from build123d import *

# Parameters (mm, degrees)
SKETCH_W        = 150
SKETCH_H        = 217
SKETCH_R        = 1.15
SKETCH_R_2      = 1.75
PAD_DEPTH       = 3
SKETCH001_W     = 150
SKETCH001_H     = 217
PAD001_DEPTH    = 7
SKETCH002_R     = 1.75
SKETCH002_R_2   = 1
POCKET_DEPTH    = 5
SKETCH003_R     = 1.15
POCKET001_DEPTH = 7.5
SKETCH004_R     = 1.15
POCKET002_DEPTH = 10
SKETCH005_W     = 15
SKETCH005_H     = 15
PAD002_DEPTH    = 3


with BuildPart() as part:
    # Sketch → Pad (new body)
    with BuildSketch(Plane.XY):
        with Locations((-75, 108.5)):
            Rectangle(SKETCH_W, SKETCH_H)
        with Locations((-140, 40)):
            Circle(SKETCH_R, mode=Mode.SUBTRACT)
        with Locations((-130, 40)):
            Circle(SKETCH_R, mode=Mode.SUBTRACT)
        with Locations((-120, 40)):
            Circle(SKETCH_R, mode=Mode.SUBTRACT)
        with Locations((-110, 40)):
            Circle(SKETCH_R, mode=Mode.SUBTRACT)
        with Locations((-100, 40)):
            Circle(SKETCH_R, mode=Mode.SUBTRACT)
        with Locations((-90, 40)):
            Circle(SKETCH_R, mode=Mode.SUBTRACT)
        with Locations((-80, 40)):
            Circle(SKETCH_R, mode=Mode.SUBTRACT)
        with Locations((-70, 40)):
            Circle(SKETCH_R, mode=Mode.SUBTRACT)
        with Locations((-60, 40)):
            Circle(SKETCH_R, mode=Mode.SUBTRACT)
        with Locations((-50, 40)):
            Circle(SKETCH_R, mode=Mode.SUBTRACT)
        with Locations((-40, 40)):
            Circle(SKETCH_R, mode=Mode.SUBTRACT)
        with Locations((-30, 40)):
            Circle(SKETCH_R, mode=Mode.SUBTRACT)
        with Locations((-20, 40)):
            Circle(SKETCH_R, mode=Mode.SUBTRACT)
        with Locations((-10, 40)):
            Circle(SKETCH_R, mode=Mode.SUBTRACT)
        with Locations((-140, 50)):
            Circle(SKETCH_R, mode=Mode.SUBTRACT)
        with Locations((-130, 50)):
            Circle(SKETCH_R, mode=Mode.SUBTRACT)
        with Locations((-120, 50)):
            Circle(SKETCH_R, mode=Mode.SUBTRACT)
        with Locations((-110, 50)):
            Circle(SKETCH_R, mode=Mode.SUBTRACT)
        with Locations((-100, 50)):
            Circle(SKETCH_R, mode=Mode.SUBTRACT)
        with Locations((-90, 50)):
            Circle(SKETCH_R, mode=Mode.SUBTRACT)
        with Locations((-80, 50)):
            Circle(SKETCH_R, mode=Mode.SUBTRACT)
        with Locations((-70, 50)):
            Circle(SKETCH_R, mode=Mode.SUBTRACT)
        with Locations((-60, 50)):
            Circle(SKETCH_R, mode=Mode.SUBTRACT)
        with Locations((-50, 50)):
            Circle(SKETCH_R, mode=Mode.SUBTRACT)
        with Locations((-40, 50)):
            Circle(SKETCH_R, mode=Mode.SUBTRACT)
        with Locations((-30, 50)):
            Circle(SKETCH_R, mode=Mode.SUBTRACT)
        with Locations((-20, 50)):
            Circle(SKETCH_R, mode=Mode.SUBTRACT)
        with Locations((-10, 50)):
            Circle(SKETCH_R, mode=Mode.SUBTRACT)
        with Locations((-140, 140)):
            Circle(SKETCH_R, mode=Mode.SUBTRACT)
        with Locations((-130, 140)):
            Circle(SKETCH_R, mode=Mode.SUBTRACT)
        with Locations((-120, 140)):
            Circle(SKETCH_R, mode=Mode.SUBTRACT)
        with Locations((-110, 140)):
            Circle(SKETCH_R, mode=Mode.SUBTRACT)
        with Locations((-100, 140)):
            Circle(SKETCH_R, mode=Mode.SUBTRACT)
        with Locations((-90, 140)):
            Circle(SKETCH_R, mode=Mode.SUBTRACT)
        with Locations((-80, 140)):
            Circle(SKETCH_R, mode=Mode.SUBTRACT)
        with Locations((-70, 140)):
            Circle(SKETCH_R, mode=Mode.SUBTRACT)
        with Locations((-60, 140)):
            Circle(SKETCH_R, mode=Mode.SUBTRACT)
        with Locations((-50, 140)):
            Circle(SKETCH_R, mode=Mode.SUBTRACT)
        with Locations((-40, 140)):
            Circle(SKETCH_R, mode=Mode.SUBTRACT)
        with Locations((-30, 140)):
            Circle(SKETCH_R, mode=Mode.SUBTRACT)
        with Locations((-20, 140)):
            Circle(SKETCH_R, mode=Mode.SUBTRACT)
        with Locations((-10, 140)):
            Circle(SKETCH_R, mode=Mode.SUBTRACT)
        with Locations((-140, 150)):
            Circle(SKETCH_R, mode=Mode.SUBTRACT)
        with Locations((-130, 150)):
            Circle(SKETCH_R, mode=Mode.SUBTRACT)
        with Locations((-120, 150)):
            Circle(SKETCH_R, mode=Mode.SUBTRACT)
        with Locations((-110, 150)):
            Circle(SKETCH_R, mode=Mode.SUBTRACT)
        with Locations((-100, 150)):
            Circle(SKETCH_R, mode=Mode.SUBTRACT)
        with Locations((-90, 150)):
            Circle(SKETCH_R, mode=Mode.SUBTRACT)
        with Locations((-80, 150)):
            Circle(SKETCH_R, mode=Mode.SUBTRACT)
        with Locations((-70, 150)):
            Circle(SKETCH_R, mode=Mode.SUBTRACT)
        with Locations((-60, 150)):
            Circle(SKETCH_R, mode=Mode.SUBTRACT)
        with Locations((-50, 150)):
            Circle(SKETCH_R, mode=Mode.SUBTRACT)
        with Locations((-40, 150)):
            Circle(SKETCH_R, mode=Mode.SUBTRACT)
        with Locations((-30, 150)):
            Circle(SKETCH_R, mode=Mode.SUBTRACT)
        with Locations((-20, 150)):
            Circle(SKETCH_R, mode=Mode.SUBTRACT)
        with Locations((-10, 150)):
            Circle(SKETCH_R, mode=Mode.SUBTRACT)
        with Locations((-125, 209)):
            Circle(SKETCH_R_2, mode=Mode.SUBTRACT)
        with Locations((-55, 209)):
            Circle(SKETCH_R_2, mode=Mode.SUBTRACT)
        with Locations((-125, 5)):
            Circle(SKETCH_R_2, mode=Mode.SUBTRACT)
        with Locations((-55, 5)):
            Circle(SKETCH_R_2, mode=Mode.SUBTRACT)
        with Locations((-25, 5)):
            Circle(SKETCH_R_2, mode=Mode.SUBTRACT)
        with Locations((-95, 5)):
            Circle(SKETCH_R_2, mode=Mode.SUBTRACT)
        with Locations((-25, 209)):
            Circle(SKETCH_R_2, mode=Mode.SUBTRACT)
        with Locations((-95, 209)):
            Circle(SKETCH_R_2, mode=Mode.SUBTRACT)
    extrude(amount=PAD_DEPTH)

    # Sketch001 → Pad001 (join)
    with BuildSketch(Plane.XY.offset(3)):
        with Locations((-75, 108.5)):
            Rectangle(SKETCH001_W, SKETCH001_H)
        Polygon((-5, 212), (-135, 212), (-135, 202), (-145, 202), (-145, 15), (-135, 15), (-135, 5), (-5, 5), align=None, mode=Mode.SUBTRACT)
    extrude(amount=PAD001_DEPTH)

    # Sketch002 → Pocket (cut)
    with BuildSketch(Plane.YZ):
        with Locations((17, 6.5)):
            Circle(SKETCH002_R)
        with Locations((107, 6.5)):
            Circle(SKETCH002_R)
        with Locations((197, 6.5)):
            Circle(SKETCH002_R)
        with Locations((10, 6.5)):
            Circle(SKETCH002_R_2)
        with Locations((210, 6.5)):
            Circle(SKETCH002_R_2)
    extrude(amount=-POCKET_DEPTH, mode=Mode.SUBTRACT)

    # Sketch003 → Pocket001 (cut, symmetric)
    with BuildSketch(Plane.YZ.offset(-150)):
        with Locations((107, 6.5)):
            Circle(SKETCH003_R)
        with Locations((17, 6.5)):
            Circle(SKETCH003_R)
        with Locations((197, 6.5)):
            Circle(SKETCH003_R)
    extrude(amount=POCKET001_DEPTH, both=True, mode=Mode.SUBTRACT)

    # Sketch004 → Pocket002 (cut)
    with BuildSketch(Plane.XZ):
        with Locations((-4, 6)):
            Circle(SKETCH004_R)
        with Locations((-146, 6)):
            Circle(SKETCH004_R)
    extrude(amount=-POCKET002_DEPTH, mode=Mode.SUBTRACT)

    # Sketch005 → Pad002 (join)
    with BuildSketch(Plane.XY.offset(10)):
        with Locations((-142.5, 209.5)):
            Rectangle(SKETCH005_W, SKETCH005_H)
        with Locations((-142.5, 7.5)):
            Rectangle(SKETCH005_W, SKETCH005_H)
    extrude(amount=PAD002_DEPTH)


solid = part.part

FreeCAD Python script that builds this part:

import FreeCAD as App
import Part
import Sketcher

V = App.Vector

doc = App.newDocument("Part")
body = doc.addObject("PartDesign::Body", "Body")

# Sketch on XY plane
sketch1 = body.newObject("Sketcher::SketchObject", "Sketch")
sketch1.AttachmentSupport = (doc.getObject("XY_Plane"), [""])
sketch1.MapMode = "FlatFace"
sketch1.addGeometry([
    Part.LineSegment(V(-150, 217, 0), V(-150, 0, 0)),  # 0
    Part.LineSegment(V(-150, 0, 0), V(0, 0, 0)),  # 1
    Part.LineSegment(V(0, 0, 0), V(0, 217, 0)),  # 2
    Part.LineSegment(V(0, 217, 0), V(-150, 217, 0)),  # 3
    Part.Circle(V(-125, 5, 0), V(0, 0, 1), 1.8),  # 4
    Part.Circle(V(-140, 40, 0), V(0, 0, 1), 1.1),  # 5
    Part.Circle(V(-130, 40, 0), V(0, 0, 1), 1.1),  # 6
    Part.Circle(V(-140, 50, 0), V(0, 0, 1), 1.1),  # 7
    Part.Circle(V(-130, 50, 0), V(0, 0, 1), 1.1),  # 8
    Part.Circle(V(-120, 40, 0), V(0, 0, 1), 1.1),  # 9
    Part.Circle(V(-110, 40, 0), V(0, 0, 1), 1.1),  # 10
    Part.Circle(V(-120, 50, 0), V(0, 0, 1), 1.1),  # 11
    Part.Circle(V(-110, 50, 0), V(0, 0, 1), 1.1),  # 12
    Part.Circle(V(-95, 5, 0), V(0, 0, 1), 1.8),  # 13
    Part.Circle(V(-100, 40, 0), V(0, 0, 1), 1.1),  # 14
    Part.Circle(V(-100, 50, 0), V(0, 0, 1), 1.1),  # 15
    Part.Circle(V(-90, 40, 0), V(0, 0, 1), 1.1),  # 16
    Part.Circle(V(-80, 40, 0), V(0, 0, 1), 1.1),  # 17
    Part.Circle(V(-90, 50, 0), V(0, 0, 1), 1.1),  # 18
    Part.Circle(V(-80, 50, 0), V(0, 0, 1), 1.1),  # 19
    Part.Circle(V(-55, 5, 0), V(0, 0, 1), 1.8),  # 20
    Part.Circle(V(-70, 40, 0), V(0, 0, 1), 1.1),  # 21
    Part.Circle(V(-60, 40, 0), V(0, 0, 1), 1.1),  # 22
    Part.Circle(V(-70, 50, 0), V(0, 0, 1), 1.1),  # 23
    Part.Circle(V(-60, 50, 0), V(0, 0, 1), 1.1),  # 24
    Part.Circle(V(-50, 40, 0), V(0, 0, 1), 1.1),  # 25
    Part.Circle(V(-50, 50, 0), V(0, 0, 1), 1.1),  # 26
    Part.Circle(V(-25, 5, 0), V(0, 0, 1), 1.8),  # 27
    Part.Circle(V(-40, 40, 0), V(0, 0, 1), 1.1),  # 28
    Part.Circle(V(-30, 40, 0), V(0, 0, 1), 1.1),  # 29
    Part.Circle(V(-40, 50, 0), V(0, 0, 1), 1.1),  # 30
    Part.Circle(V(-30, 50, 0), V(0, 0, 1), 1.1),  # 31
    Part.Circle(V(-20, 40, 0), V(0, 0, 1), 1.1),  # 32
    Part.Circle(V(-10, 40, 0), V(0, 0, 1), 1.1),  # 33
    Part.Circle(V(-20, 50, 0), V(0, 0, 1), 1.1),  # 34
    Part.Circle(V(-10, 50, 0), V(0, 0, 1), 1.1),  # 35
    Part.Circle(V(-140, 140, 0), V(0, 0, 1), 1.1),  # 36
    Part.Circle(V(-130, 140, 0), V(0, 0, 1), 1.1),  # 37
    Part.Circle(V(-140, 150, 0), V(0, 0, 1), 1.1),  # 38
    Part.Circle(V(-130, 150, 0), V(0, 0, 1), 1.1),  # 39
    Part.Circle(V(-120, 140, 0), V(0, 0, 1), 1.1),  # 40
    Part.Circle(V(-110, 140, 0), V(0, 0, 1), 1.1),  # 41
    Part.Circle(V(-120, 150, 0), V(0, 0, 1), 1.1),  # 42
    Part.Circle(V(-110, 150, 0), V(0, 0, 1), 1.1),  # 43
    Part.Circle(V(-100, 140, 0), V(0, 0, 1), 1.1),  # 44
    Part.Circle(V(-100, 150, 0), V(0, 0, 1), 1.1),  # 45
    Part.Circle(V(-90, 140, 0), V(0, 0, 1), 1.1),  # 46
    Part.Circle(V(-80, 140, 0), V(0, 0, 1), 1.1),  # 47
    Part.Circle(V(-90, 150, 0), V(0, 0, 1), 1.1),  # 48
    Part.Circle(V(-80, 150, 0), V(0, 0, 1), 1.1),  # 49
    Part.Circle(V(-125, 209, 0), V(0, 0, 1), 1.8),  # 50
    Part.Circle(V(-95, 209, 0), V(0, 0, 1), 1.8),  # 51
    Part.Circle(V(-70, 140, 0), V(0, 0, 1), 1.1),  # 52
    Part.Circle(V(-60, 140, 0), V(0, 0, 1), 1.1),  # 53
    Part.Circle(V(-70, 150, 0), V(0, 0, 1), 1.1),  # 54
    Part.Circle(V(-60, 150, 0), V(0, 0, 1), 1.1),  # 55
    Part.Circle(V(-50, 140, 0), V(0, 0, 1), 1.1),  # 56
    Part.Circle(V(-50, 150, 0), V(0, 0, 1), 1.1),  # 57
    Part.Circle(V(-40, 140, 0), V(0, 0, 1), 1.1),  # 58
    Part.Circle(V(-30, 140, 0), V(0, 0, 1), 1.1),  # 59
    Part.Circle(V(-40, 150, 0), V(0, 0, 1), 1.1),  # 60
    Part.Circle(V(-30, 150, 0), V(0, 0, 1), 1.1),  # 61
    Part.Circle(V(-20, 140, 0), V(0, 0, 1), 1.1),  # 62
    Part.Circle(V(-10, 140, 0), V(0, 0, 1), 1.1),  # 63
    Part.Circle(V(-20, 150, 0), V(0, 0, 1), 1.1),  # 64
    Part.Circle(V(-10, 150, 0), V(0, 0, 1), 1.1),  # 65
    Part.Circle(V(-55, 209, 0), V(0, 0, 1), 1.8),  # 66
    Part.Circle(V(-25, 209, 0), V(0, 0, 1), 1.8),  # 67
], False)
sketch1.addConstraint([
    Sketcher.Constraint("Coincident", 0, 2, 1, 1),
    Sketcher.Constraint("Coincident", 1, 2, 2, 1),
    Sketcher.Constraint("Coincident", 2, 2, 3, 1),
    Sketcher.Constraint("Coincident", 3, 2, 0, 1),
    Sketcher.Constraint("Vertical", 0),
    Sketcher.Constraint("Horizontal", 1),
    Sketcher.Constraint("Vertical", 2),
    Sketcher.Constraint("Horizontal", 3),
    Sketcher.Constraint("Coincident", 1, 2, -1, 1),
    Sketcher.Constraint("Equal", 5, 6),
    Sketcher.Constraint("Equal", 6, 7),
    Sketcher.Constraint("Equal", 7, 8),
    Sketcher.Constraint("Equal", 8, 9),
    Sketcher.Constraint("Equal", 9, 10),
    Sketcher.Constraint("Equal", 10, 11),
    Sketcher.Constraint("Equal", 11, 12),
    Sketcher.Constraint("Equal", 4, 13),
    Sketcher.Constraint("Equal", 12, 14),
    Sketcher.Constraint("Equal", 14, 15),
    Sketcher.Constraint("Equal", 15, 16),
    Sketcher.Constraint("Equal", 16, 17),
    Sketcher.Constraint("Equal", 17, 18),
    Sketcher.Constraint("Equal", 18, 19),
    Sketcher.Constraint("Equal", 13, 20),
    Sketcher.Constraint("Equal", 19, 21),
    Sketcher.Constraint("Equal", 21, 22),
    Sketcher.Constraint("Equal", 22, 23),
    Sketcher.Constraint("Equal", 23, 24),
    Sketcher.Constraint("Equal", 24, 25),
    Sketcher.Constraint("Equal", 25, 26),
    Sketcher.Constraint("Equal", 20, 27),
    Sketcher.Constraint("Equal", 26, 28),
    Sketcher.Constraint("Equal", 28, 29),
    Sketcher.Constraint("Equal", 29, 30),
    Sketcher.Constraint("Equal", 30, 31),
    Sketcher.Constraint("Equal", 31, 32),
    Sketcher.Constraint("Equal", 32, 33),
    Sketcher.Constraint("Equal", 33, 34),
    Sketcher.Constraint("Equal", 34, 35),
    Sketcher.Constraint("Equal", 35, 36),
    Sketcher.Constraint("Equal", 36, 37),
    Sketcher.Constraint("Equal", 37, 38),
    Sketcher.Constraint("Equal", 38, 39),
    Sketcher.Constraint("Equal", 39, 40),
    Sketcher.Constraint("Equal", 40, 41),
    Sketcher.Constraint("Equal", 41, 42),
    Sketcher.Constraint("Equal", 42, 43),
    Sketcher.Constraint("Equal", 43, 44),
    Sketcher.Constraint("Equal", 44, 45),
    Sketcher.Constraint("Equal", 45, 46),
    Sketcher.Constraint("Equal", 46, 47),
    Sketcher.Constraint("Equal", 47, 48),
    Sketcher.Constraint("Equal", 48, 49),
    Sketcher.Constraint("Equal", 27, 50),
    Sketcher.Constraint("Equal", 50, 51),
    Sketcher.Constraint("Equal", 49, 52),
    Sketcher.Constraint("Equal", 52, 53),
    Sketcher.Constraint("Equal", 53, 54),
    Sketcher.Constraint("Equal", 54, 55),
    Sketcher.Constraint("Equal", 55, 56),
    Sketcher.Constraint("Equal", 56, 57),
    Sketcher.Constraint("Equal", 57, 58),
    Sketcher.Constraint("Equal", 58, 59),
    Sketcher.Constraint("Equal", 59, 60),
    Sketcher.Constraint("Equal", 60, 61),
    Sketcher.Constraint("Equal", 61, 62),
    Sketcher.Constraint("Equal", 62, 63),
    Sketcher.Constraint("Equal", 63, 64),
    Sketcher.Constraint("Equal", 64, 65),
    Sketcher.Constraint("Equal", 51, 66),
    Sketcher.Constraint("Equal", 66, 67),
    Sketcher.Constraint("Horizontal", 5, 3, 6, 3),
    Sketcher.Constraint("Horizontal", 7, 3, 8, 3),
    Sketcher.Constraint("Horizontal", 6, 3, 9, 3),
    Sketcher.Constraint("Horizontal", 9, 3, 10, 3),
    Sketcher.Constraint("Horizontal", 8, 3, 11, 3),
    Sketcher.Constraint("Horizontal", 11, 3, 12, 3),
    Sketcher.Constraint("Horizontal", 4, 3, 13, 3),
    Sketcher.Constraint("Horizontal", 10, 3, 14, 3),
    Sketcher.Constraint("Horizontal", 12, 3, 15, 3),
    Sketcher.Constraint("Horizontal", 14, 3, 16, 3),
    Sketcher.Constraint("Horizontal", 16, 3, 17, 3),
    Sketcher.Constraint("Horizontal", 15, 3, 18, 3),
    Sketcher.Constraint("Horizontal", 18, 3, 19, 3),
    Sketcher.Constraint("Horizontal", 13, 3, 20, 3),
    Sketcher.Constraint("Horizontal", 17, 3, 21, 3),
    Sketcher.Constraint("Horizontal", 21, 3, 22, 3),
    Sketcher.Constraint("Horizontal", 19, 3, 23, 3),
    Sketcher.Constraint("Horizontal", 23, 3, 24, 3),
    Sketcher.Constraint("Horizontal", 22, 3, 25, 3),
    Sketcher.Constraint("Horizontal", 24, 3, 26, 3),
    Sketcher.Constraint("Horizontal", 20, 3, 27, 3),
    Sketcher.Constraint("Horizontal", 25, 3, 28, 3),
    Sketcher.Constraint("Horizontal", 28, 3, 29, 3),
    Sketcher.Constraint("Horizontal", 26, 3, 30, 3),
    Sketcher.Constraint("Horizontal", 30, 3, 31, 3),
    Sketcher.Constraint("Horizontal", 29, 3, 32, 3),
    Sketcher.Constraint("Horizontal", 32, 3, 33, 3),
    Sketcher.Constraint("Horizontal", 31, 3, 34, 3),
    Sketcher.Constraint("Horizontal", 34, 3, 35, 3),
    Sketcher.Constraint("Horizontal", 36, 3, 37, 3),
    Sketcher.Constraint("Horizontal", 38, 3, 39, 3),
    Sketcher.Constraint("Horizontal", 37, 3, 40, 3),
    Sketcher.Constraint("Horizontal", 40, 3, 41, 3),
    Sketcher.Constraint("Horizontal", 39, 3, 42, 3),
    Sketcher.Constraint("Horizontal", 42, 3, 43, 3),
    Sketcher.Constraint("Horizontal", 41, 3, 44, 3),
    Sketcher.Constraint("Horizontal", 43, 3, 45, 3),
    Sketcher.Constraint("Horizontal", 44, 3, 46, 3),
    Sketcher.Constraint("Horizontal", 46, 3, 47, 3),
    Sketcher.Constraint("Horizontal", 45, 3, 48, 3),
    Sketcher.Constraint("Horizontal", 48, 3, 49, 3),
    Sketcher.Constraint("Horizontal", 50, 3, 51, 3),
    Sketcher.Constraint("Horizontal", 47, 3, 52, 3),
    Sketcher.Constraint("Horizontal", 52, 3, 53, 3),
    Sketcher.Constraint("Horizontal", 49, 3, 54, 3),
    Sketcher.Constraint("Horizontal", 54, 3, 55, 3),
    Sketcher.Constraint("Horizontal", 53, 3, 56, 3),
    Sketcher.Constraint("Horizontal", 55, 3, 57, 3),
    Sketcher.Constraint("Horizontal", 56, 3, 58, 3),
    Sketcher.Constraint("Horizontal", 58, 3, 59, 3),
    Sketcher.Constraint("Horizontal", 57, 3, 60, 3),
    Sketcher.Constraint("Horizontal", 60, 3, 61, 3),
    Sketcher.Constraint("Horizontal", 59, 3, 62, 3),
    Sketcher.Constraint("Horizontal", 62, 3, 63, 3),
    Sketcher.Constraint("Horizontal", 61, 3, 64, 3),
    Sketcher.Constraint("Horizontal", 64, 3, 65, 3),
    Sketcher.Constraint("Horizontal", 51, 3, 66, 3),
    Sketcher.Constraint("Horizontal", 66, 3, 67, 3),
    Sketcher.Constraint("Vertical", 5, 3, 7, 3),
    Sketcher.Constraint("Vertical", 6, 3, 8, 3),
    Sketcher.Constraint("Vertical", 9, 3, 11, 3),
    Sketcher.Constraint("Vertical", 10, 3, 12, 3),
    Sketcher.Constraint("Vertical", 14, 3, 15, 3),
    Sketcher.Constraint("Vertical", 16, 3, 18, 3),
    Sketcher.Constraint("Vertical", 17, 3, 19, 3),
    Sketcher.Constraint("Vertical", 21, 3, 23, 3),
    Sketcher.Constraint("Vertical", 22, 3, 24, 3),
    Sketcher.Constraint("Vertical", 25, 3, 26, 3),
    Sketcher.Constraint("Vertical", 28, 3, 30, 3),
    Sketcher.Constraint("Vertical", 29, 3, 31, 3),
    Sketcher.Constraint("Vertical", 32, 3, 34, 3),
    Sketcher.Constraint("Vertical", 33, 3, 35, 3),
    Sketcher.Constraint("Vertical", 7, 3, 36, 3),
    Sketcher.Constraint("Vertical", 8, 3, 37, 3),
    Sketcher.Constraint("Vertical", 36, 3, 38, 3),
    Sketcher.Constraint("Vertical", 37, 3, 39, 3),
    Sketcher.Constraint("Vertical", 11, 3, 40, 3),
    Sketcher.Constraint("Vertical", 12, 3, 41, 3),
    Sketcher.Constraint("Vertical", 40, 3, 42, 3),
    Sketcher.Constraint("Vertical", 41, 3, 43, 3),
    Sketcher.Constraint("Vertical", 15, 3, 44, 3),
    Sketcher.Constraint("Vertical", 44, 3, 45, 3),
    Sketcher.Constraint("Vertical", 18, 3, 46, 3),
    Sketcher.Constraint("Vertical", 19, 3, 47, 3),
    Sketcher.Constraint("Vertical", 46, 3, 48, 3),
    Sketcher.Constraint("Vertical", 47, 3, 49, 3),
    Sketcher.Constraint("Vertical", 4, 3, 50, 3),
    Sketcher.Constraint("Vertical", 13, 3, 51, 3),
    Sketcher.Constraint("Vertical", 23, 3, 52, 3),
    Sketcher.Constraint("Vertical", 24, 3, 53, 3),
    Sketcher.Constraint("Vertical", 52, 3, 54, 3),
    Sketcher.Constraint("Vertical", 53, 3, 55, 3),
    Sketcher.Constraint("Vertical", 26, 3, 56, 3),
    Sketcher.Constraint("Vertical", 56, 3, 57, 3),
    Sketcher.Constraint("Vertical", 30, 3, 58, 3),
    Sketcher.Constraint("Vertical", 31, 3, 59, 3),
    Sketcher.Constraint("Vertical", 58, 3, 60, 3),
    Sketcher.Constraint("Vertical", 59, 3, 61, 3),
    Sketcher.Constraint("Vertical", 34, 3, 62, 3),
    Sketcher.Constraint("Vertical", 35, 3, 63, 3),
    Sketcher.Constraint("Vertical", 62, 3, 64, 3),
    Sketcher.Constraint("Vertical", 63, 3, 65, 3),
    Sketcher.Constraint("Vertical", 20, 3, 66, 3),
    Sketcher.Constraint("Vertical", 27, 3, 67, 3),
    Sketcher.Constraint("Diameter", 4, 3.5),
    Sketcher.Constraint("Diameter", 5, 2.3),
    Sketcher.Constraint("DistanceX", 1, 1, 1, 2, 150.0),
    Sketcher.Constraint("DistanceY", 0, 2, 0, 1, 217.0),
    Sketcher.Constraint("DistanceX", 4, 3, -1, 1, 125.0),
    Sketcher.Constraint("DistanceY", -1, 1, 4, 3, 5.0),
    Sketcher.Constraint("DistanceX", 5, 3, -1, 1, 140.0),
    Sketcher.Constraint("DistanceY", -1, 1, 5, 3, 40.0),
    Sketcher.Constraint("DistanceX", 6, 3, -1, 1, 130.0),
    Sketcher.Constraint("DistanceY", -1, 1, 7, 3, 50.0),
    Sketcher.Constraint("DistanceX", 9, 3, -1, 1, 120.0),
    Sketcher.Constraint("DistanceX", 10, 3, -1, 1, 110.0),
    Sketcher.Constraint("DistanceX", 13, 3, -1, 1, 95.0),
    Sketcher.Constraint("DistanceX", 14, 3, -1, 1, 100.0),
    Sketcher.Constraint("DistanceX", 16, 3, -1, 1, 90.0),
    Sketcher.Constraint("DistanceX", 17, 3, -1, 1, 80.0),
    Sketcher.Constraint("DistanceX", 20, 3, -1, 1, 55.0),
    Sketcher.Constraint("DistanceX", 21, 3, -1, 1, 70.0),
    Sketcher.Constraint("DistanceX", 22, 3, -1, 1, 60.0),
    Sketcher.Constraint("DistanceX", 25, 3, -1, 1, 50.0),
    Sketcher.Constraint("DistanceX", 27, 3, -1, 1, 25.0),
    Sketcher.Constraint("DistanceX", 28, 3, -1, 1, 40.0),
    Sketcher.Constraint("DistanceX", 29, 3, -1, 1, 30.0),
    Sketcher.Constraint("DistanceX", 32, 3, -1, 1, 20.0),
    Sketcher.Constraint("DistanceX", 33, 3, -1, 1, 10.0),
    Sketcher.Constraint("DistanceY", -1, 1, 36, 3, 140.0),
    Sketcher.Constraint("DistanceY", -1, 1, 38, 3, 150.0),
    Sketcher.Constraint("DistanceY", -1, 1, 50, 3, 209.0),
])
pad1 = body.newObject("PartDesign::Pad", "Pad")
pad1.Profile = sketch1
pad1.Length = 3

# Sketch on XY plane
sketch2 = body.newObject("Sketcher::SketchObject", "Sketch001")
sketch2.AttachmentSupport = (doc.getObject("XY_Plane"), [""])
sketch2.MapMode = "FlatFace"
sketch2.AttachmentOffset = App.Placement(V(0, 0, 3), App.Rotation())
sketch2.addGeometry([
    Part.LineSegment(V(-150, 217, 0), V(-150, 0, 0)),  # 0
    Part.LineSegment(V(-150, 0, 0), V(0, 0, 0)),  # 1
    Part.LineSegment(V(0, 0, 0), V(0, 217, 0)),  # 2
    Part.LineSegment(V(0, 217, 0), V(-150, 217, 0)),  # 3
    Part.LineSegment(V(-135, 212, 0), V(-5, 212, 0)),  # 4
    Part.LineSegment(V(-5, 212, 0), V(-5, 5, 0)),  # 5
    Part.LineSegment(V(-5, 5, 0), V(-135, 5, 0)),  # 6
    Part.LineSegment(V(-135, 5, 0), V(-135, 15, 0)),  # 7
    Part.LineSegment(V(-135, 15, 0), V(-145, 15, 0)),  # 8
    Part.LineSegment(V(-145, 15, 0), V(-145, 202, 0)),  # 9
    Part.LineSegment(V(-145, 202, 0), V(-135, 202, 0)),  # 10
    Part.LineSegment(V(-135, 202, 0), V(-135, 212, 0)),  # 11
], False)
sketch2.addConstraint([
    Sketcher.Constraint("Coincident", 0, 2, 1, 1),
    Sketcher.Constraint("Coincident", 1, 2, 2, 1),
    Sketcher.Constraint("Coincident", 2, 2, 3, 1),
    Sketcher.Constraint("Coincident", 3, 2, 0, 1),
    Sketcher.Constraint("Coincident", 4, 2, 5, 1),
    Sketcher.Constraint("Coincident", 5, 2, 6, 1),
    Sketcher.Constraint("Coincident", 6, 2, 7, 1),
    Sketcher.Constraint("Coincident", 7, 2, 8, 1),
    Sketcher.Constraint("Coincident", 8, 2, 9, 1),
    Sketcher.Constraint("Coincident", 9, 2, 10, 1),
    Sketcher.Constraint("Coincident", 10, 2, 11, 1),
    Sketcher.Constraint("Coincident", 11, 2, 4, 1),
    Sketcher.Constraint("Vertical", 0),
    Sketcher.Constraint("Horizontal", 1),
    Sketcher.Constraint("Vertical", 2),
    Sketcher.Constraint("Horizontal", 3),
    Sketcher.Constraint("Horizontal", 4),
    Sketcher.Constraint("Vertical", 5),
    Sketcher.Constraint("Horizontal", 6),
    Sketcher.Constraint("Vertical", 7),
    Sketcher.Constraint("Horizontal", 8),
    Sketcher.Constraint("Vertical", 9),
    Sketcher.Constraint("Horizontal", 10),
    Sketcher.Constraint("Vertical", 11),
    Sketcher.Constraint("Coincident", 1, 2, -1, 1),
    Sketcher.Constraint("Vertical", 7, 2, 10, 2),
    Sketcher.Constraint("Equal", 10, 7),
    Sketcher.Constraint("Equal", 7, 11),
    Sketcher.Constraint("DistanceX", 1, 1, 1, 2, 150.0),
    Sketcher.Constraint("DistanceX", 4, 1, 4, 2, 130.0),
    Sketcher.Constraint("DistanceX", 8, 2, 8, 1, 10.0),
    Sketcher.Constraint("DistanceY", 0, 2, 0, 1, 217.0),
    Sketcher.Constraint("DistanceY", 5, 2, 5, 1, 207.0),
    Sketcher.Constraint("DistanceX", 4, 2, -1, 1, 5.0),
    Sketcher.Constraint("DistanceY", -1, 1, 4, 2, 212.0),
])
pad2 = body.newObject("PartDesign::Pad", "Pad001")
pad2.Profile = sketch2
pad2.Length = 7

# Sketch on YZ plane
sketch3 = body.newObject("Sketcher::SketchObject", "Sketch002")
sketch3.AttachmentSupport = (doc.getObject("YZ_Plane"), [""])
sketch3.MapMode = "FlatFace"
sketch3.addGeometry([
    Part.Circle(V(17, 6.5, 0), V(0, 0, 1), 1.8),  # 0
    Part.Circle(V(107, 6.5, 0), V(0, 0, 1), 1.8),  # 1
    Part.Circle(V(197, 6.5, 0), V(0, 0, 1), 1.8),  # 2
    Part.Circle(V(10, 6.5, 0), V(0, 0, 1), 1),  # 3
    Part.Circle(V(210, 6.5, 0), V(0, 0, 1), 1),  # 4
], False)
sketch3.addConstraint([
    Sketcher.Constraint("Equal", 0, 1),
    Sketcher.Constraint("Equal", 1, 2),
    Sketcher.Constraint("Equal", 3, 4),
    Sketcher.Constraint("Horizontal", 0, 3, 1, 3),
    Sketcher.Constraint("Horizontal", 1, 3, 2, 3),
    Sketcher.Constraint("Horizontal", 2, 3, 3, 3),
    Sketcher.Constraint("Horizontal", 3, 3, 4, 3),
    Sketcher.Constraint("Diameter", 3, 2.0),
    Sketcher.Constraint("Diameter", 0, 3.5),
    Sketcher.Constraint("DistanceX", -1, 1, 0, 3, 17.0),
    Sketcher.Constraint("DistanceX", -1, 1, 1, 3, 107.0),
    Sketcher.Constraint("DistanceX", -1, 1, 2, 3, 197.0),
    Sketcher.Constraint("DistanceX", -1, 1, 3, 3, 10.0),
    Sketcher.Constraint("DistanceX", -1, 1, 4, 3, 210.0),
    Sketcher.Constraint("DistanceY", -1, 1, 0, 3, 6.5),
])
pocket1 = body.newObject("PartDesign::Pocket", "Pocket")
pocket1.Profile = sketch3
pocket1.Length = 5

# Sketch on YZ plane
sketch4 = body.newObject("Sketcher::SketchObject", "Sketch003")
sketch4.AttachmentSupport = (doc.getObject("YZ_Plane"), [""])
sketch4.MapMode = "FlatFace"
sketch4.AttachmentOffset = App.Placement(V(0, 0, -150), App.Rotation())
sketch4.addGeometry([
    Part.Circle(V(107, 6.5, 0), V(0, 0, 1), 1.1),
    Part.Circle(V(17, 6.5, 0), V(0, 0, 1), 1.1),
    Part.Circle(V(197, 6.5, 0), V(0, 0, 1), 1.1),
], False)
sketch4.addConstraint([
    Sketcher.Constraint("Equal", 0, 1),
    Sketcher.Constraint("Equal", 1, 2),
    Sketcher.Constraint("Horizontal", 0, 3, 1, 3),
    Sketcher.Constraint("Horizontal", 1, 3, 2, 3),
    Sketcher.Constraint("Diameter", 0, 2.3),
    Sketcher.Constraint("DistanceX", -1, 1, 0, 3, 107.0),
    Sketcher.Constraint("DistanceX", -1, 1, 1, 3, 17.0),
    Sketcher.Constraint("DistanceX", -1, 1, 2, 3, 197.0),
    Sketcher.Constraint("DistanceY", -1, 1, 0, 3, 6.5),
])
pocket2 = body.newObject("PartDesign::Pocket", "Pocket001")
pocket2.Profile = sketch4
pocket2.Length = 15
pocket2.Midplane = True

# Sketch on XZ plane
sketch5 = body.newObject("Sketcher::SketchObject", "Sketch004")
sketch5.AttachmentSupport = (doc.getObject("XZ_Plane"), [""])
sketch5.MapMode = "FlatFace"
sketch5.addGeometry([
    Part.Circle(V(-4, 6, 0), V(0, 0, 1), 1.1),
    Part.Circle(V(-146, 6, 0), V(0, 0, 1), 1.1),
], False)
sketch5.addConstraint([
    Sketcher.Constraint("Equal", 0, 1),
    Sketcher.Constraint("Horizontal", 0, 3, 1, 3),
    Sketcher.Constraint("Diameter", 0, 2.3),
    Sketcher.Constraint("DistanceX", 0, 3, -1, 1, 4.0),
    Sketcher.Constraint("DistanceY", -1, 1, 0, 3, 6.0),
    Sketcher.Constraint("DistanceX", 1, 3, -1, 1, 146.0),
])
pocket3 = body.newObject("PartDesign::Pocket", "Pocket002")
pocket3.Profile = sketch5
pocket3.Length = 10

# Sketch on XY plane
sketch6 = body.newObject("Sketcher::SketchObject", "Sketch005")
sketch6.AttachmentSupport = (doc.getObject("XY_Plane"), [""])
sketch6.MapMode = "FlatFace"
sketch6.AttachmentOffset = App.Placement(V(0, 0, 10), App.Rotation())
sketch6.addGeometry([
    Part.LineSegment(V(-150, 217, 0), V(-150, 202, 0)),  # 0
    Part.LineSegment(V(-150, 202, 0), V(-135, 202, 0)),  # 1
    Part.LineSegment(V(-135, 202, 0), V(-135, 217, 0)),  # 2
    Part.LineSegment(V(-135, 217, 0), V(-150, 217, 0)),  # 3
    Part.LineSegment(V(-150, 15, 0), V(-150, 0, 0)),  # 4
    Part.LineSegment(V(-150, 0, 0), V(-135, 0, 0)),  # 5
    Part.LineSegment(V(-135, 0, 0), V(-135, 15, 0)),  # 6
    Part.LineSegment(V(-135, 15, 0), V(-150, 15, 0)),  # 7
], False)
sketch6.addConstraint([
    Sketcher.Constraint("Coincident", 0, 2, 1, 1),
    Sketcher.Constraint("Coincident", 1, 2, 2, 1),
    Sketcher.Constraint("Coincident", 2, 2, 3, 1),
    Sketcher.Constraint("Coincident", 3, 2, 0, 1),
    Sketcher.Constraint("Coincident", 4, 2, 5, 1),
    Sketcher.Constraint("Coincident", 5, 2, 6, 1),
    Sketcher.Constraint("Coincident", 6, 2, 7, 1),
    Sketcher.Constraint("Coincident", 7, 2, 4, 1),
    Sketcher.Constraint("Vertical", 0),
    Sketcher.Constraint("Horizontal", 1),
    Sketcher.Constraint("Vertical", 2),
    Sketcher.Constraint("Horizontal", 3),
    Sketcher.Constraint("Vertical", 4),
    Sketcher.Constraint("Horizontal", 5),
    Sketcher.Constraint("Vertical", 6),
    Sketcher.Constraint("Horizontal", 7),
    Sketcher.Constraint("PointOnObject", 4, 2, -1),
    Sketcher.Constraint("Vertical", 3, 2, 4, 2),
    Sketcher.Constraint("Vertical", 2, 2, 5, 2),
    Sketcher.Constraint("Equal", 7, 0),
    Sketcher.Constraint("Equal", 2, 4),
    Sketcher.Constraint("DistanceX", 1, 1, 1, 2, 15.0),
    Sketcher.Constraint("DistanceX", 0, 2, -1, 1, 150.0),
    Sketcher.Constraint("DistanceY", -1, 1, 0, 2, 202.0),
])
pad3 = body.newObject("PartDesign::Pad", "Pad002")
pad3.Profile = sketch6
pad3.Length = 3

doc.recompute()
